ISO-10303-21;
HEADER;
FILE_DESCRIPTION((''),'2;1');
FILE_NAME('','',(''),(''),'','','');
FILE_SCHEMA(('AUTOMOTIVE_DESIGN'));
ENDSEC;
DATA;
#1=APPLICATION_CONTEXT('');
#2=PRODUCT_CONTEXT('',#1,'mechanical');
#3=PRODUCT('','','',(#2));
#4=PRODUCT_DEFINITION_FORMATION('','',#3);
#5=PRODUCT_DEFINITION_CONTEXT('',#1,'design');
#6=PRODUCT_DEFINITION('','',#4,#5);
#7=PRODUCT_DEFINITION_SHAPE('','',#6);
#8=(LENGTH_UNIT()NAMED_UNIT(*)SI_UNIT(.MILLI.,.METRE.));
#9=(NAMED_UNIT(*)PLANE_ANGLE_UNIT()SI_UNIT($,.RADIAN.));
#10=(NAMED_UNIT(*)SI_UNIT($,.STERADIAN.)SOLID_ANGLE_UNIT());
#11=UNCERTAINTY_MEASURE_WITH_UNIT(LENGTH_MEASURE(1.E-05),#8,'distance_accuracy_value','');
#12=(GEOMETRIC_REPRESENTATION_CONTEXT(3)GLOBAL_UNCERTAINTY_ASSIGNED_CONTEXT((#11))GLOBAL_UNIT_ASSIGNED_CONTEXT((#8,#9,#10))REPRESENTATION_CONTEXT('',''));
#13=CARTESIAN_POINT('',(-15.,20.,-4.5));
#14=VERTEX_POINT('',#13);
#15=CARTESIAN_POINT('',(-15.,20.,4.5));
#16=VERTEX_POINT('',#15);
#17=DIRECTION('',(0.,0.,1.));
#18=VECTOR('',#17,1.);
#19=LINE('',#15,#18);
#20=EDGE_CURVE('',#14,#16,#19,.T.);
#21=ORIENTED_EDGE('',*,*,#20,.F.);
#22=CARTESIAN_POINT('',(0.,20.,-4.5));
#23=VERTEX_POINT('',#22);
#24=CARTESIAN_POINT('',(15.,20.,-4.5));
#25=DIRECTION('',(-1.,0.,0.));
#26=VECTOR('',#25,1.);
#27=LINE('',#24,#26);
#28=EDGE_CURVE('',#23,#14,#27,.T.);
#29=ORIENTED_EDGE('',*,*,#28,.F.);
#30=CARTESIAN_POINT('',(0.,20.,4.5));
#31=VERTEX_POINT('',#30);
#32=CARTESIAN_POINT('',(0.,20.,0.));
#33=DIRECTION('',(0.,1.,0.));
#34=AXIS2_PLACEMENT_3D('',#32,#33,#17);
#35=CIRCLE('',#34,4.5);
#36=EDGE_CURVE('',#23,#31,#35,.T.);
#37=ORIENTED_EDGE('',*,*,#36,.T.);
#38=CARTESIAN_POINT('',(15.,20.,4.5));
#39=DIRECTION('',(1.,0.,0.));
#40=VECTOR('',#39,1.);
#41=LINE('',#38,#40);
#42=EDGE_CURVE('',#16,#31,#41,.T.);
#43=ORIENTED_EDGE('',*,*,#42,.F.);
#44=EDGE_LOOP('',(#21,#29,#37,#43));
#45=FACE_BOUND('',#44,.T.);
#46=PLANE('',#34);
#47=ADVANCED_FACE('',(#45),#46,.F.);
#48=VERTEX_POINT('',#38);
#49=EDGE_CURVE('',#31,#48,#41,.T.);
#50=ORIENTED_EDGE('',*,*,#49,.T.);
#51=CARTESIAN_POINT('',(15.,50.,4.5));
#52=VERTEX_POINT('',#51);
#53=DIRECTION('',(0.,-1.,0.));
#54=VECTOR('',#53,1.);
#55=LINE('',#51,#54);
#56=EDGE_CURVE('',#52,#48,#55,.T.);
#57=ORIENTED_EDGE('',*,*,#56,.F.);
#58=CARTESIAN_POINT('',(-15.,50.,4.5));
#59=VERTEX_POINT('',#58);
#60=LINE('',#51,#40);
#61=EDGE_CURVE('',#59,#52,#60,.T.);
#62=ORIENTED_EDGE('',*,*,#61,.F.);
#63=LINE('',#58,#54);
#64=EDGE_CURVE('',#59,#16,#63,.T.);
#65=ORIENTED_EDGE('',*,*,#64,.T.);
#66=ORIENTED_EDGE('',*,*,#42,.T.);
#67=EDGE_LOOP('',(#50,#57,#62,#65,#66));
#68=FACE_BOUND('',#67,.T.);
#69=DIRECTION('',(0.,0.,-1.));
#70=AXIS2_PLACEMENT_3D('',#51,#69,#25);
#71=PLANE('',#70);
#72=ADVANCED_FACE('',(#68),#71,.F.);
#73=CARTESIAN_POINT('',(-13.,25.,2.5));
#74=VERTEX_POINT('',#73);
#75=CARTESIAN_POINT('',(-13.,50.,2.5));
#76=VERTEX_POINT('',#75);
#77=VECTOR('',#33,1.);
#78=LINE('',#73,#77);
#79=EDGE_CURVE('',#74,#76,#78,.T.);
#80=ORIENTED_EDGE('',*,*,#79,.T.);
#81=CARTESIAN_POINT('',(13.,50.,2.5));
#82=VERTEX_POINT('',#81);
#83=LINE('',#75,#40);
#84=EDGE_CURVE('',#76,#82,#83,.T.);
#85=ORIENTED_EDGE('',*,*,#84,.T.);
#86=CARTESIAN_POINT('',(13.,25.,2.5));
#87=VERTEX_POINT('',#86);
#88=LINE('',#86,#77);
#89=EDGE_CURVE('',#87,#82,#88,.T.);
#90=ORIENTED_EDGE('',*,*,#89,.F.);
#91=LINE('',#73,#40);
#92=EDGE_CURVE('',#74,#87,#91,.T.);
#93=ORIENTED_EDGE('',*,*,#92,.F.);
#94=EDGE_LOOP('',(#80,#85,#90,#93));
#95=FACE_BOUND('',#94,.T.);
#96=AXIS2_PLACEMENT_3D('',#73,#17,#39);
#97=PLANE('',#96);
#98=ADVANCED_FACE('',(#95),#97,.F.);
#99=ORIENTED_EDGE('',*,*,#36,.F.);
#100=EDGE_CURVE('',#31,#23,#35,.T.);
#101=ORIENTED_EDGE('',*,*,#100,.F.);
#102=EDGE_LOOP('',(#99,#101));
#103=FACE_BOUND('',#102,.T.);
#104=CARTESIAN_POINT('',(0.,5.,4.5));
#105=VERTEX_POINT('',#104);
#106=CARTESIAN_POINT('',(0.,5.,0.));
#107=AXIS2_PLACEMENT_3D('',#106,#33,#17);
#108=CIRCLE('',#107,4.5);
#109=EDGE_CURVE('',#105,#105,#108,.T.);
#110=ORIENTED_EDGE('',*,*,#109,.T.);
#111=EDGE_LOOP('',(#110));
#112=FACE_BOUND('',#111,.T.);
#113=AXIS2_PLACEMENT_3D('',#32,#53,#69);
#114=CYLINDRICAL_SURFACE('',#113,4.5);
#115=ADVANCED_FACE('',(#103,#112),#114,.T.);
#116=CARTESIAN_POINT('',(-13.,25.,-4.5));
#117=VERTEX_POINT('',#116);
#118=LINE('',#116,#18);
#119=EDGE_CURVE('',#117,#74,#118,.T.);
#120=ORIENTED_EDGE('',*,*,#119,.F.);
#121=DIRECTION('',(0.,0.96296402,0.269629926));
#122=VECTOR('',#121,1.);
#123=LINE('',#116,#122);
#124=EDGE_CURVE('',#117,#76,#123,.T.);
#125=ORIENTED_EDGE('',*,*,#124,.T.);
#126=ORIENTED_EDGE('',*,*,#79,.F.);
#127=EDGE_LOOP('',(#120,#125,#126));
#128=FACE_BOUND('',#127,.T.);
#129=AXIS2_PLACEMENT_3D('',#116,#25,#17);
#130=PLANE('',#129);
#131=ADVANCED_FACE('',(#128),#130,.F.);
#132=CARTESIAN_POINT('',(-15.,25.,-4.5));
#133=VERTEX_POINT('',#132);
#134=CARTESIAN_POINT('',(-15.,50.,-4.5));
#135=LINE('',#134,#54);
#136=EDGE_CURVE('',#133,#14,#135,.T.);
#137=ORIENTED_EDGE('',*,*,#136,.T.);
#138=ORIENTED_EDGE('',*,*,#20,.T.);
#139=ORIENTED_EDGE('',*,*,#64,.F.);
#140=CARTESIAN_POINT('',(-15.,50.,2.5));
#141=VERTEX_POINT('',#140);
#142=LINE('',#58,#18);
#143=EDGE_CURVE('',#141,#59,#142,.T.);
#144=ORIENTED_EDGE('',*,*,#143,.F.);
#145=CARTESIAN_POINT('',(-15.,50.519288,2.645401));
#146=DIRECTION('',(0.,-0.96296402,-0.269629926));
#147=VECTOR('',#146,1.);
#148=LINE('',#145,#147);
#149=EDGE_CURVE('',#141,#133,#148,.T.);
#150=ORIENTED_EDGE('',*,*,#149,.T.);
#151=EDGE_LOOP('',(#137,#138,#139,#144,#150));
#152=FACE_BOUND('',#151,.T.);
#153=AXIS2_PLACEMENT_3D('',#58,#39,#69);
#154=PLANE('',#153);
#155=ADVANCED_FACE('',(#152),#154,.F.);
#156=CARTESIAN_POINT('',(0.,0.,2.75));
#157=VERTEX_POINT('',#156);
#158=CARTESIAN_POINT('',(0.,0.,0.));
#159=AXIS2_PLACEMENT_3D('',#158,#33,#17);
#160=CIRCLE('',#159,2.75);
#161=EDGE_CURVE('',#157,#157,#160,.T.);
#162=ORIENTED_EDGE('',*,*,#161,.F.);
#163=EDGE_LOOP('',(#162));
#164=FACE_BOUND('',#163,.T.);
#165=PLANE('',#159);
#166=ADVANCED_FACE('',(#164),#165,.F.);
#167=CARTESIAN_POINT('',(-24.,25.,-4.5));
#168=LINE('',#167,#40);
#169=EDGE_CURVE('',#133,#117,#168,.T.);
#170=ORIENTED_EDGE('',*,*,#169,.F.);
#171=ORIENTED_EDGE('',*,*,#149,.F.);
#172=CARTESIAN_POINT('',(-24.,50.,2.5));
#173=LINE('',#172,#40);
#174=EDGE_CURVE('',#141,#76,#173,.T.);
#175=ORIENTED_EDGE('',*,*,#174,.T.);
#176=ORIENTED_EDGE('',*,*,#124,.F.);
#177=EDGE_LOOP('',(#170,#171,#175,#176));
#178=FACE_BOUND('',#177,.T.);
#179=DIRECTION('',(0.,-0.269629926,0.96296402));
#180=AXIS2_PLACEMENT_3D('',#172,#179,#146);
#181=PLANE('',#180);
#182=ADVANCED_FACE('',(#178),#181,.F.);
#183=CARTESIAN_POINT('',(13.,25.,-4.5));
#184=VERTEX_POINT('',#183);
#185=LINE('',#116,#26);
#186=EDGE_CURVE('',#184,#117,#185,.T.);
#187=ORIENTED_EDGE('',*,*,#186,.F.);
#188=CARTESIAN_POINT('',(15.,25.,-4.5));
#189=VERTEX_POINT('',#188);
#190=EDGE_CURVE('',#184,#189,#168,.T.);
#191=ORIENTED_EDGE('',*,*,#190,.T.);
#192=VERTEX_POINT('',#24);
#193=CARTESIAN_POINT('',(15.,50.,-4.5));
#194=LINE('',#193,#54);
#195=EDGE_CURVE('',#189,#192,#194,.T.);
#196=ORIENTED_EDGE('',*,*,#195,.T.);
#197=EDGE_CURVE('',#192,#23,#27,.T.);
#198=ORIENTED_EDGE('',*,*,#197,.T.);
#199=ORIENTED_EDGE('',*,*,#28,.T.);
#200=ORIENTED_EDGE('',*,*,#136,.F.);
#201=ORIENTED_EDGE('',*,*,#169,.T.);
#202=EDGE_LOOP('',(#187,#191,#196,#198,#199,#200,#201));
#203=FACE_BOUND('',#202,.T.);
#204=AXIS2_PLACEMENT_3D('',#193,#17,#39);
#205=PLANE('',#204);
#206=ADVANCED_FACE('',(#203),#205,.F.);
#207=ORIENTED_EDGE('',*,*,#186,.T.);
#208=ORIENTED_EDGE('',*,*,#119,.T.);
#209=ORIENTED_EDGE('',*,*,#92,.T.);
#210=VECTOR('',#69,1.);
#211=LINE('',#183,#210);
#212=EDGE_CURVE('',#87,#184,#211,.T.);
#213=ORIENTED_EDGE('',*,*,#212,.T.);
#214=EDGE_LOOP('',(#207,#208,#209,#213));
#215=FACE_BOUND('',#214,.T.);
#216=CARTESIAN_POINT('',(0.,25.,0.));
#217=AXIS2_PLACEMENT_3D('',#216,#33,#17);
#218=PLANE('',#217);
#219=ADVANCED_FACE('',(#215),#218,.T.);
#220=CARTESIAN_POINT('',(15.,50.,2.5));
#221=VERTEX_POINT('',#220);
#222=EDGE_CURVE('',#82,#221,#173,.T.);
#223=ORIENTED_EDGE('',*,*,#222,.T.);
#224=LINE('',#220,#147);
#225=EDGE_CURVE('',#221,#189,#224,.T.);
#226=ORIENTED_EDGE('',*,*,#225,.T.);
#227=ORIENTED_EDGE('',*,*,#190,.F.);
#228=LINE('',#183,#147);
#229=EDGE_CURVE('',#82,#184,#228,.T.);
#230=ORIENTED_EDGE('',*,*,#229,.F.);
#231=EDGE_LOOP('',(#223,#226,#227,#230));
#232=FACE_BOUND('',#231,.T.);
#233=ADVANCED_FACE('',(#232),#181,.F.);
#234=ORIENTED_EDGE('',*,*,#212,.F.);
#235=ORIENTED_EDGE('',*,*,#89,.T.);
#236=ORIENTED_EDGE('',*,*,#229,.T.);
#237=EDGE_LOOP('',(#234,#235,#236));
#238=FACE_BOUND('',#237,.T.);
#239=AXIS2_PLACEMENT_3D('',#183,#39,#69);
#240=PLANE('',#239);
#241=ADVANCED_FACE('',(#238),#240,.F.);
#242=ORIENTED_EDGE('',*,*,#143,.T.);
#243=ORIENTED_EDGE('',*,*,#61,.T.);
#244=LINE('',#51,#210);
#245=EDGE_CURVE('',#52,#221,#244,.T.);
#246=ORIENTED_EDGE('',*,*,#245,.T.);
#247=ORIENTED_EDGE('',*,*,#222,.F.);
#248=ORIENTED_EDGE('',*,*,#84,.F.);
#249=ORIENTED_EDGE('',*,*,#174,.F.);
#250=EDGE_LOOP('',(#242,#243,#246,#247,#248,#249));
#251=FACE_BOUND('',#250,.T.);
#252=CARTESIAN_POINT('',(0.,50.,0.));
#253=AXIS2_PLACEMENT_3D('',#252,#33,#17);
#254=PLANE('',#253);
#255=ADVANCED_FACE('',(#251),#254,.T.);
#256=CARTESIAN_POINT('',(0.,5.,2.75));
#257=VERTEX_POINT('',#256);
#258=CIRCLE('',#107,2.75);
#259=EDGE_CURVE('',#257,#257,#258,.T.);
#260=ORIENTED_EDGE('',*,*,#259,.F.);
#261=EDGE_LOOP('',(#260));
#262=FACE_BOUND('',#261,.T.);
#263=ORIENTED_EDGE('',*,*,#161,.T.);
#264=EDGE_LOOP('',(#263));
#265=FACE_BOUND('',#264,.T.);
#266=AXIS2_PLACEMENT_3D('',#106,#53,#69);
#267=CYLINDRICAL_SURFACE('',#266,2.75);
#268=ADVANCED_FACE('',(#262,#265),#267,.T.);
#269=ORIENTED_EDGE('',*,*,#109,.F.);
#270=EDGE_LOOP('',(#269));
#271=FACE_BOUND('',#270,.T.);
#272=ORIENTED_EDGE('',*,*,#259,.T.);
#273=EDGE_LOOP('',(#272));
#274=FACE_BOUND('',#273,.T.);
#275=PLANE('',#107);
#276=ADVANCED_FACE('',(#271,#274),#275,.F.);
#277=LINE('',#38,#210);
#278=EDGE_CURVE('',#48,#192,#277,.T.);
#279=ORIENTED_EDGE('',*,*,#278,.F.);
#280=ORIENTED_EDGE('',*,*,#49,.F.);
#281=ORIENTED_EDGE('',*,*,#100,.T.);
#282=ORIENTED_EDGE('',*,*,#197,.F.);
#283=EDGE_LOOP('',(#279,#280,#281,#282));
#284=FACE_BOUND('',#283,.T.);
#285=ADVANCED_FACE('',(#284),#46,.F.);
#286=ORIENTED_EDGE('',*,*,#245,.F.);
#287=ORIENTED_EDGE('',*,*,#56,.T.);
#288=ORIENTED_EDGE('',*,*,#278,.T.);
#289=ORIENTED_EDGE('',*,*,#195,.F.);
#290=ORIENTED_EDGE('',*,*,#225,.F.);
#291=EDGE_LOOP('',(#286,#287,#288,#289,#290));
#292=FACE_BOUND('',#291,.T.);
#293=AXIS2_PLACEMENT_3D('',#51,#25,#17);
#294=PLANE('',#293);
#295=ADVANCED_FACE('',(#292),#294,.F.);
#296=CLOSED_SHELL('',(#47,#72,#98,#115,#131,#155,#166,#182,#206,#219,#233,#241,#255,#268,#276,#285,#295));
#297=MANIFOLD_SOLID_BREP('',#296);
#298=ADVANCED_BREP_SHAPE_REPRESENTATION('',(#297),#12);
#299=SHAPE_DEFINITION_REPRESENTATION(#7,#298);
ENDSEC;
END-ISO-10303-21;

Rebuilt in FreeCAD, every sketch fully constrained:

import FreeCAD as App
import Part
import Sketcher
from FreeCAD import Vector


def add_polygon(sketch, points):
    """Adds a closed chain of lines whose ends are joined by coincident constraints."""
    first, n = sketch.GeometryCount, len(points)
    for a, b in zip(points, points[1:] + points[:1]):
        sketch.addGeometry(Part.LineSegment(App.Vector(*a, 0), App.Vector(*b, 0)), False)
    for i in range(n):
        sketch.addConstraint(Sketcher.Constraint("Coincident", first + i, 2, first + (i + 1) % n, 1))

doc = App.newDocument("Part")
params = doc.addObject("Spreadsheet::Sheet", "Params")
for row, (alias, value) in enumerate([
    ("sketch1_diameter", "5.5 mm"),
    ("pad1_length", "5 mm"),
    ("sketch2_diameter", "9 mm"),
    ("pad2_length", "15 mm"),
    ("sketch3_width", "30 mm"),
    ("sketch3_height", "9 mm"),
    ("pad3_length", "30 mm"),
    ("sketch4_width", "26 mm"),
    ("sketch4_height", "7 mm"),
    ("pocket1_length", "25 mm"),
    ("sketch5_width", "25 mm"),
    ("sketch5_height", "7 mm"),
    ("pocket2_length", "39 mm"),
], start=1):
    params.set(f"A{row}", alias)
    params.set(f"B{row}", "=" + value)
    params.setAlias(f"B{row}", alias)

body = doc.addObject("PartDesign::Body", "Body")

# Sketch on XZ plane
sketch1 = body.newObject("Sketcher::SketchObject", "Sketch")
sketch1.AttachmentSupport = (doc.getObject("XZ_Plane"), [""])
sketch1.MapMode = "FlatFace"
sketch1.addGeometry(Part.Circle(Vector(0, 0, 0), Vector(0, 0, 1), 2.75), False)
sketch1.addConstraint([
    Sketcher.Constraint("Coincident", 0, 3, -1, 1),
    Sketcher.Constraint("Diameter", 0, 5.5),
])
sketch1.setExpression("Constraints[1]", "Params.sketch1_diameter")
pad1 = body.newObject("PartDesign::Pad", "Pad")
pad1.Profile = sketch1
pad1.setExpression("Length", "Params.pad1_length")
pad1.Reversed = True

# Sketch on XZ plane
sketch2 = body.newObject("Sketcher::SketchObject", "Sketch001")
sketch2.AttachmentSupport = (doc.getObject("XZ_Plane"), [""])
sketch2.MapMode = "FlatFace"
sketch2.AttachmentOffset = App.Placement(Vector(0, 0, -5), App.Rotation())
sketch2.addGeometry(Part.Circle(Vector(0, 0, 0), Vector(0, 0, 1), 4.5), False)
sketch2.addConstraint([
    Sketcher.Constraint("Coincident", 0, 3, -1, 1),
    Sketcher.Constraint("Diameter", 0, 9.0),
])
sketch2.setExpression("Constraints[1]", "Params.sketch2_diameter")
pad2 = body.newObject("PartDesign::Pad", "Pad001")
pad2.Profile = sketch2
pad2.setExpression("Length", "Params.pad2_length")
pad2.Reversed = True

# Sketch on XZ plane
sketch3 = body.newObject("Sketcher::SketchObject", "Sketch002")
sketch3.AttachmentSupport = (doc.getObject("XZ_Plane"), [""])
sketch3.MapMode = "FlatFace"
sketch3.AttachmentOffset = App.Placement(Vector(0, 0, -20), App.Rotation())
add_polygon(sketch3, [(-15, -4.5), (-15, 4.5), (15, 4.5), (15, -4.5)])  # lines 0-3
sketch3.addConstraint([
    Sketcher.Constraint("Vertical", 0),
    Sketcher.Constraint("Horizontal", 1),
    Sketcher.Constraint("Vertical", 2),
    Sketcher.Constraint("Horizontal", 3),
    Sketcher.Constraint("Symmetric", 0, 2, 2, 2, -1, 1),
    Sketcher.Constraint("DistanceX", 1, 1, 1, 2, 30.0),
    Sketcher.Constraint("DistanceY", 0, 1, 0, 2, 9.0),
])
sketch3.setExpression("Constraints[9]", "Params.sketch3_width")
sketch3.setExpression("Constraints[10]", "Params.sketch3_height")
pad3 = body.newObject("PartDesign::Pad", "Pad002")
pad3.Profile = sketch3
pad3.setExpression("Length", "Params.pad3_length")
pad3.Reversed = True

# Sketch on XZ plane
sketch4 = body.newObject("Sketcher::SketchObject", "Sketch003")
sketch4.AttachmentSupport = (doc.getObject("XZ_Plane"), [""])
sketch4.MapMode = "FlatFace"
sketch4.AttachmentOffset = App.Placement(Vector(0, 0, -50), App.Rotation())
add_polygon(sketch4, [(-13, -4.5), (-13, 2.5), (13, 2.5), (13, -4.5)])  # lines 0-3
sketch4.addConstraint([
    Sketcher.Constraint("Vertical", 0),
    Sketcher.Constraint("Horizontal", 1),
    Sketcher.Constraint("Vertical", 2),
    Sketcher.Constraint("Horizontal", 3),
    Sketcher.Constraint("DistanceX", 1, 1, 1, 2, 26.0),
    Sketcher.Constraint("DistanceY", 0, 1, 0, 2, 7.0),
    Sketcher.Constraint("DistanceX", 0, 2, -1, 1, 13.0),
    Sketcher.Constraint("DistanceY", -1, 1, 0, 2, 2.5),
])
sketch4.setExpression("Constraints[8]", "Params.sketch4_width")
sketch4.setExpression("Constraints[9]", "Params.sketch4_height")
pocket1 = body.newObject("PartDesign::Pocket", "Pocket")
pocket1.Profile = sketch4
pocket1.setExpression("Length", "Params.pocket1_length")
pocket1.Reversed = True

# Sketch on YZ plane
sketch5 = body.newObject("Sketcher::SketchObject", "Sketch004")
sketch5.AttachmentSupport = (doc.getObject("YZ_Plane"), [""])
sketch5.MapMode = "FlatFace"
sketch5.AttachmentOffset = App.Placement(Vector(0, 0, 15), App.Rotation())
add_polygon(sketch5, [(50, 2.5), (25, -4.5), (50, -4.5)])  # lines 0-2
sketch5.addConstraint([
    Sketcher.Constraint("Horizontal", 1),
    Sketcher.Constraint("Vertical", 2),
    Sketcher.Constraint("DistanceX", 1, 1, 1, 2, 25.0),
    Sketcher.Constraint("DistanceY", 2, 1, 2, 2, 7.0),
    Sketcher.Constraint("DistanceX", -1, 1, 0, 2, 25.0),
    Sketcher.Constraint("DistanceY", 0, 2, -1, 1, 4.5),
])
sketch5.setExpression("Constraints[5]", "Params.sketch5_width")
sketch5.setExpression("Constraints[6]", "Params.sketch5_height")
pocket2 = body.newObject("PartDesign::Pocket", "Pocket001")
pocket2.Profile = sketch5
pocket2.setExpression("Length", "Params.pocket2_length")

doc.recompute()
